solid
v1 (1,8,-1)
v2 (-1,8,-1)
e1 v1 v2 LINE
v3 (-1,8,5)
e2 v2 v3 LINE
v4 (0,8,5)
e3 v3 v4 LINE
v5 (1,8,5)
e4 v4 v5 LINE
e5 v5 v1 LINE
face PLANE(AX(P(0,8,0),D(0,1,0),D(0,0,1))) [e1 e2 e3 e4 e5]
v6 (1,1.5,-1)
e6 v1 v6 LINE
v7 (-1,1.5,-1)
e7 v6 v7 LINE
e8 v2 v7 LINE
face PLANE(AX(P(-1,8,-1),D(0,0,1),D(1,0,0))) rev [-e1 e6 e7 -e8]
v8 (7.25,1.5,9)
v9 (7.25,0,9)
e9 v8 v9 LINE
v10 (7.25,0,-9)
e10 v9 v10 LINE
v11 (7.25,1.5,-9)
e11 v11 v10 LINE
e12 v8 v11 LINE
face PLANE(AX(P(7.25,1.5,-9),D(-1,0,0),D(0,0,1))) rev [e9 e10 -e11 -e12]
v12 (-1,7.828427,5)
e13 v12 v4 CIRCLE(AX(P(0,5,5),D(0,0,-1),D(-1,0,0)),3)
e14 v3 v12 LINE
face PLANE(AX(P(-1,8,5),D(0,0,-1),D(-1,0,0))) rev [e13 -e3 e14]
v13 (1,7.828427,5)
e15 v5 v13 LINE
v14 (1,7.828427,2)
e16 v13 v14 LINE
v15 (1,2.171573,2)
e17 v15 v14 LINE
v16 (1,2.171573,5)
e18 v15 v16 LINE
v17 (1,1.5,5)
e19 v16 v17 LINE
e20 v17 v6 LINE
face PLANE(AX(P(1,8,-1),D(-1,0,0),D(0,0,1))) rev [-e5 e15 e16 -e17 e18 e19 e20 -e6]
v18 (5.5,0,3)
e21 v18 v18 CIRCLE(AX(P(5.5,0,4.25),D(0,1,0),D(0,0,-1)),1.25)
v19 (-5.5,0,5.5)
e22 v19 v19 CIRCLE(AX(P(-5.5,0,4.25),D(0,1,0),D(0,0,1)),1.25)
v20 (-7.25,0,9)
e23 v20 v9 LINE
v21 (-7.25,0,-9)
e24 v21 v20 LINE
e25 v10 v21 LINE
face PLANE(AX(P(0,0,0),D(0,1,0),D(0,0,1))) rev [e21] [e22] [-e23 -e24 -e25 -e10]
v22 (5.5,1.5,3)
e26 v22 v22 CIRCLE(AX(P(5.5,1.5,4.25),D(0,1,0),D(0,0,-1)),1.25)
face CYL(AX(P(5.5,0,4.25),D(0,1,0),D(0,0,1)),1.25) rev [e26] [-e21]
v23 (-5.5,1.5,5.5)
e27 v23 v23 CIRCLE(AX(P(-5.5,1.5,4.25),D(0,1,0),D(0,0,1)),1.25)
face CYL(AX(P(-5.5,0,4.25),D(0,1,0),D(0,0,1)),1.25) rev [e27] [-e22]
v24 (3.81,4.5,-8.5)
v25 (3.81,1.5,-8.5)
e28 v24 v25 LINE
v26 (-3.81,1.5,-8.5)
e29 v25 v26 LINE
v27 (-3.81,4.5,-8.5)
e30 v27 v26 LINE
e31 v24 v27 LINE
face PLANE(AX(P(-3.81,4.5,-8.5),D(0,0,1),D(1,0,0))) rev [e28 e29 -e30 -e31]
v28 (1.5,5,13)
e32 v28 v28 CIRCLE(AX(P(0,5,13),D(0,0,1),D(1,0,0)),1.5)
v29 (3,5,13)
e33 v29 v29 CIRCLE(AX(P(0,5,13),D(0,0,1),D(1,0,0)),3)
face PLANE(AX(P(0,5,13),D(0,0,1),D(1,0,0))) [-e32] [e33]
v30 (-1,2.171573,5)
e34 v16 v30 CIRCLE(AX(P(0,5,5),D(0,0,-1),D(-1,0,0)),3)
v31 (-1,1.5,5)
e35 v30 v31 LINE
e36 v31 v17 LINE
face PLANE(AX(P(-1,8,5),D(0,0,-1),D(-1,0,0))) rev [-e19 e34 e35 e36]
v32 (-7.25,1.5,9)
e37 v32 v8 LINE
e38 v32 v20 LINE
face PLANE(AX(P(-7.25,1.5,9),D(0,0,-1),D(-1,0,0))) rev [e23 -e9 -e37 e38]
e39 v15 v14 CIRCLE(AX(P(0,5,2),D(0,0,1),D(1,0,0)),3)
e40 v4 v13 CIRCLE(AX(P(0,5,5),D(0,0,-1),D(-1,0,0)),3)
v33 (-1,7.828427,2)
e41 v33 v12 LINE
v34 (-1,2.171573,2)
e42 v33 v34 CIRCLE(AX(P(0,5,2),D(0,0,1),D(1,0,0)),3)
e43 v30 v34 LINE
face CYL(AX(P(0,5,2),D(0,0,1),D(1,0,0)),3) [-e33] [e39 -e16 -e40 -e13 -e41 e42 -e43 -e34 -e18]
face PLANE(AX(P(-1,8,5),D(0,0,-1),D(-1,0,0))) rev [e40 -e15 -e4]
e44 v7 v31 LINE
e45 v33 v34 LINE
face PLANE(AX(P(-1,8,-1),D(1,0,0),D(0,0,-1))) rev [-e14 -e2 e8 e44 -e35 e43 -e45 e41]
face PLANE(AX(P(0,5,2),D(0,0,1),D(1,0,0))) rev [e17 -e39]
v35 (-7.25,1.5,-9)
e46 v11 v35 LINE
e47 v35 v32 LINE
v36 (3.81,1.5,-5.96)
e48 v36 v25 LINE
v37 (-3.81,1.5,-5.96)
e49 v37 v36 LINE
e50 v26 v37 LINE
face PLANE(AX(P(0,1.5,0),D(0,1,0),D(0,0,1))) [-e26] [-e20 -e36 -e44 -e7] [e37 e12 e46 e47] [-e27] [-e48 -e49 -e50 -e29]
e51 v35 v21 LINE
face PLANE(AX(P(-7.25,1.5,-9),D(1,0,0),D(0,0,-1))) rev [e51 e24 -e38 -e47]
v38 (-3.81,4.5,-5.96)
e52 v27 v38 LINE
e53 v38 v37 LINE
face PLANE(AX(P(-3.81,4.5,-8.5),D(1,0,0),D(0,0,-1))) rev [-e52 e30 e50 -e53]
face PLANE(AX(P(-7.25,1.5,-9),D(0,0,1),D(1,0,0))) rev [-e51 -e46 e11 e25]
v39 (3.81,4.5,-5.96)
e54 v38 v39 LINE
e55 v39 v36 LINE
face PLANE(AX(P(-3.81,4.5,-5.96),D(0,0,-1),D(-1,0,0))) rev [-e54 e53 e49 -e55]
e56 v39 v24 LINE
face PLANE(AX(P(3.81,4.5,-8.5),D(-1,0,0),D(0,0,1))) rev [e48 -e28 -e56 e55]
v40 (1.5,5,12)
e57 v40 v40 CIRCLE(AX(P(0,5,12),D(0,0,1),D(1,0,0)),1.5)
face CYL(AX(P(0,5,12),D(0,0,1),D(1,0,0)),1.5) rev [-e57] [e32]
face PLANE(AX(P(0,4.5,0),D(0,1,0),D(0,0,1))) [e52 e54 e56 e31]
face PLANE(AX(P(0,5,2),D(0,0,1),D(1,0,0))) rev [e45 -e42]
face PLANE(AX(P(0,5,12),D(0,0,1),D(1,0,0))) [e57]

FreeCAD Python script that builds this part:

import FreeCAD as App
import Part
import Sketcher
Q = App.Units.Quantity

doc = App.newDocument("Part")
params = doc.addObject("Spreadsheet::Sheet", "Params")
for row, (alias, value) in enumerate([
    ("sketch1_height", "18 mm"),
    ("sketch1_width", "14.5 mm"),
    ("pad1_length", "1.5 mm"),
    ("sketch2_diameter", "6 mm"),
    ("pad2_length", "4 mm"),
    ("pad2_length2", "7 mm"),
    ("sketch3_diameter", "3 mm"),
    ("pocket1_length", "1 mm"),
    ("sketch4_width", "2 mm"),
    ("sketch4_height", "6 mm"),
    ("pad3_length", "6.5 mm"),
    ("sketch5_width", "7.62 mm"),
    ("sketch5_height", "2.54 mm"),
    ("pad4_length", "3 mm"),
    ("sketch6_diameter", "2.5 mm"),
], start=1):
    params.set(f"A{row}", alias)
    params.set(f"B{row}", "=" + value)
    params.setAlias(f"B{row}", alias)

body = doc.addObject("PartDesign::Body", "Body")

# Sketch on XZ plane
sketch1 = body.newObject("Sketcher::SketchObject", "Sketch")
sketch1.AttachmentSupport = (doc.getObject("XZ_Plane"), [""])
sketch1.MapMode = "FlatFace"
sketch1.addGeometry([
    Part.LineSegment(App.Vector(-7, -9, 0), App.Vector(-7, 9, 0)),
    Part.LineSegment(App.Vector(-7, 9, 0), App.Vector(7, 9, 0)),
    Part.LineSegment(App.Vector(7, 9, 0), App.Vector(7, -9, 0)),
    Part.LineSegment(App.Vector(7, -9, 0), App.Vector(-7, -9, 0)),
], False)
sketch1.addConstraint([
    Sketcher.Constraint("Coincident", 0, 2, 1, 1),
    Sketcher.Constraint("Coincident", 1, 2, 2, 1),
    Sketcher.Constraint("Coincident", 2, 2, 3, 1),
    Sketcher.Constraint("Coincident", 3, 2, 0, 1),
    Sketcher.Constraint("Vertical", 0),
    Sketcher.Constraint("Horizontal", 1),
    Sketcher.Constraint("Vertical", 2),
    Sketcher.Constraint("Horizontal", 3),
    Sketcher.Constraint("Symmetric", 0, 2, 2, 2, -1, 1),
    Sketcher.Constraint("DistanceY", 0, 1, 0, 2, Q("18 mm")),
    Sketcher.Constraint("DistanceX", 1, 1, 1, 2, Q("14.5 mm")),
])
sketch1.setExpression("Constraints[9]", "Params.sketch1_height")
sketch1.setExpression("Constraints[10]", "Params.sketch1_width")
pad1 = body.newObject("PartDesign::Pad", "Pad")
pad1.Profile = sketch1
pad1.setExpression("Length", "Params.pad1_length")
pad1.Reversed = True
body2 = doc.addObject("PartDesign::Body", "Body001")

# Sketch on XY plane
sketch2 = body2.newObject("Sketcher::SketchObject", "Sketch001")
sketch2.AttachmentSupport = (doc.getObject("XY_Plane001"), [""])
sketch2.MapMode = "FlatFace"
sketch2.AttachmentOffset = App.Placement(App.Vector(0, 0, 9), App.Rotation())
sketch2.addGeometry(Part.Circle(App.Vector(0, 5, 0), App.Vector(0, 0, 1), 3), False)
sketch2.addConstraint([
    Sketcher.Constraint("PointOnObject", 0, 3, -2),
    Sketcher.Constraint("Diameter", 0, Q("6 mm")),
    Sketcher.Constraint("DistanceY", -1, 1, 0, 3, Q("5 mm")),
])
sketch2.setExpression("Constraints[1]", "Params.sketch2_diameter")
pad2 = body2.newObject("PartDesign::Pad", "Pad001")
pad2.Profile = sketch2
pad2.Type = "TwoLengths"
pad2.setExpression("Length", "Params.pad2_length")
pad2.setExpression("Length2", "Params.pad2_length2")

# Sketch on XY plane
sketch3 = body2.newObject("Sketcher::SketchObject", "Sketch002")
sketch3.AttachmentSupport = (doc.getObject("XY_Plane001"), [""])
sketch3.MapMode = "FlatFace"
sketch3.AttachmentOffset = App.Placement(App.Vector(0, 0, 13), App.Rotation())
sketch3.addGeometry(Part.Circle(App.Vector(0, 5, 0), App.Vector(0, 0, 1), 1.5), False)
sketch3.addConstraint([
    Sketcher.Constraint("PointOnObject", 0, 3, -2),
    Sketcher.Constraint("Diameter", 0, Q("3 mm")),
    Sketcher.Constraint("DistanceY", -1, 1, 0, 3, Q("5 mm")),
])
sketch3.setExpression("Constraints[1]", "Params.sketch3_diameter")
pocket1 = body2.newObject("PartDesign::Pocket", "Pocket")
pocket1.Profile = sketch3
pocket1.setExpression("Length", "Params.pocket1_length")
body.AllowCompound = True
doc.recompute()

boolean = body.newObject("PartDesign::Boolean", "Boolean")
boolean.Type = "Fuse"
boolean.addObjects([body2])

# Sketch on XZ plane
sketch4 = body.newObject("Sketcher::SketchObject", "Sketch003")
sketch4.AttachmentSupport = (doc.getObject("XZ_Plane"), [""])
sketch4.MapMode = "FlatFace"
sketch4.AttachmentOffset = App.Placement(App.Vector(0, 0, -1.5), App.Rotation())
sketch4.addGeometry([
    Part.LineSegment(App.Vector(-1, -1, 0), App.Vector(-1, 5, 0)),
    Part.LineSegment(App.Vector(-1, 5, 0), App.Vector(1, 5, 0)),
    Part.LineSegment(App.Vector(1, 5, 0), App.Vector(1, -1, 0)),
    Part.LineSegment(App.Vector(1, -1, 0), App.Vector(-1, -1, 0)),
], False)
sketch4.addConstraint([
    Sketcher.Constraint("Coincident", 0, 2, 1, 1),
    Sketcher.Constraint("Coincident", 1, 2, 2, 1),
    Sketcher.Constraint("Coincident", 2, 2, 3, 1),
    Sketcher.Constraint("Coincident", 3, 2, 0, 1),
    Sketcher.Constraint("Vertical", 0),
    Sketcher.Constraint("Horizontal", 1),
    Sketcher.Constraint("Vertical", 2),
    Sketcher.Constraint("Horizontal", 3),
    Sketcher.Constraint("DistanceX", 1, 1, 1, 2, Q("2 mm")),
    Sketcher.Constraint("DistanceY", 0, 1, 0, 2, Q("6 mm")),
    Sketcher.Constraint("DistanceX", 0, 2, -1, 1, Q("1 mm")),
    Sketcher.Constraint("DistanceY", -1, 1, 0, 2, Q("5 mm")),
])
sketch4.setExpression("Constraints[8]", "Params.sketch4_width")
sketch4.setExpression("Constraints[9]", "Params.sketch4_height")
pad3 = body.newObject("PartDesign::Pad", "Pad002")
pad3.Profile = sketch4
pad3.setExpression("Length", "Params.pad3_length")
pad3.Reversed = True

# Sketch on XZ plane
sketch5 = body.newObject("Sketcher::SketchObject", "Sketch004")
sketch5.AttachmentSupport = (doc.getObject("XZ_Plane"), [""])
sketch5.MapMode = "FlatFace"
sketch5.AttachmentOffset = App.Placement(App.Vector(0, 0, -1.5), App.Rotation())
sketch5.addGeometry([
    Part.LineSegment(App.Vector(-3.8, -8.5, 0), App.Vector(-3.8, -6, 0)),
    Part.LineSegment(App.Vector(-3.8, -6, 0), App.Vector(3.8, -6, 0)),
    Part.LineSegment(App.Vector(3.8, -6, 0), App.Vector(3.8, -8.5, 0)),
    Part.LineSegment(App.Vector(3.8, -8.5, 0), App.Vector(-3.8, -8.5, 0)),
], False)
sketch5.addConstraint([
    Sketcher.Constraint("Coincident", 0, 2, 1, 1),
    Sketcher.Constraint("Coincident", 1, 2, 2, 1),
    Sketcher.Constraint("Coincident", 2, 2, 3, 1),
    Sketcher.Constraint("Coincident", 3, 2, 0, 1),
    Sketcher.Constraint("Vertical", 0),
    Sketcher.Constraint("Horizontal", 1),
    Sketcher.Constraint("Vertical", 2),
    Sketcher.Constraint("Horizontal", 3),
    Sketcher.Constraint("DistanceX", 1, 1, 1, 2, Q("7.62 mm")),
    Sketcher.Constraint("DistanceY", 0, 1, 0, 2, Q("2.54 mm")),
    Sketcher.Constraint("DistanceY", 2, 2, -1, 1, Q("8.5 mm")),
    Sketcher.Constraint("DistanceX", 0, 2, -1, 1, Q("3.81 mm")),
])
sketch5.setExpression("Constraints[8]", "Params.sketch5_width")
sketch5.setExpression("Constraints[9]", "Params.sketch5_height")
pad4 = body.newObject("PartDesign::Pad", "Pad003")
pad4.Profile = sketch5
pad4.setExpression("Length", "Params.pad4_length")
pad4.Reversed = True

# Sketch on XZ plane
sketch6 = body.newObject("Sketcher::SketchObject", "Sketch005")
sketch6.AttachmentSupport = (doc.getObject("XZ_Plane"), [""])
sketch6.MapMode = "FlatFace"
sketch6.AttachmentOffset = App.Placement(App.Vector(0, 0, -1.5), App.Rotation())
sketch6.addGeometry([
    Part.Circle(App.Vector(-5.5, 4.2, 0), App.Vector(0, 0, 1), 1.2),
    Part.Circle(App.Vector(5.5, 4.2, 0), App.Vector(0, 0, 1), 1.2),
], False)
sketch6.addConstraint([
    Sketcher.Constraint("Equal", 0, 1),
    Sketcher.Constraint("Symmetric", 0, 3, 1, 3, -2),
    Sketcher.Constraint("Diameter", 0, Q("2.5 mm")),
    Sketcher.Constraint("DistanceX", 0, 3, 1, 3, Q("11 mm")),
    Sketcher.Constraint("DistanceY", -1, 1, 0, 3, Q("4.25 mm")),
])
sketch6.setExpression("Constraints[2]", "Params.sketch6_diameter")
pocket2 = body.newObject("PartDesign::Pocket", "Pocket001")
pocket2.Profile = sketch6
pocket2.Type = "ThroughAll"
pocket2.Reversed = True

doc.recompute()
